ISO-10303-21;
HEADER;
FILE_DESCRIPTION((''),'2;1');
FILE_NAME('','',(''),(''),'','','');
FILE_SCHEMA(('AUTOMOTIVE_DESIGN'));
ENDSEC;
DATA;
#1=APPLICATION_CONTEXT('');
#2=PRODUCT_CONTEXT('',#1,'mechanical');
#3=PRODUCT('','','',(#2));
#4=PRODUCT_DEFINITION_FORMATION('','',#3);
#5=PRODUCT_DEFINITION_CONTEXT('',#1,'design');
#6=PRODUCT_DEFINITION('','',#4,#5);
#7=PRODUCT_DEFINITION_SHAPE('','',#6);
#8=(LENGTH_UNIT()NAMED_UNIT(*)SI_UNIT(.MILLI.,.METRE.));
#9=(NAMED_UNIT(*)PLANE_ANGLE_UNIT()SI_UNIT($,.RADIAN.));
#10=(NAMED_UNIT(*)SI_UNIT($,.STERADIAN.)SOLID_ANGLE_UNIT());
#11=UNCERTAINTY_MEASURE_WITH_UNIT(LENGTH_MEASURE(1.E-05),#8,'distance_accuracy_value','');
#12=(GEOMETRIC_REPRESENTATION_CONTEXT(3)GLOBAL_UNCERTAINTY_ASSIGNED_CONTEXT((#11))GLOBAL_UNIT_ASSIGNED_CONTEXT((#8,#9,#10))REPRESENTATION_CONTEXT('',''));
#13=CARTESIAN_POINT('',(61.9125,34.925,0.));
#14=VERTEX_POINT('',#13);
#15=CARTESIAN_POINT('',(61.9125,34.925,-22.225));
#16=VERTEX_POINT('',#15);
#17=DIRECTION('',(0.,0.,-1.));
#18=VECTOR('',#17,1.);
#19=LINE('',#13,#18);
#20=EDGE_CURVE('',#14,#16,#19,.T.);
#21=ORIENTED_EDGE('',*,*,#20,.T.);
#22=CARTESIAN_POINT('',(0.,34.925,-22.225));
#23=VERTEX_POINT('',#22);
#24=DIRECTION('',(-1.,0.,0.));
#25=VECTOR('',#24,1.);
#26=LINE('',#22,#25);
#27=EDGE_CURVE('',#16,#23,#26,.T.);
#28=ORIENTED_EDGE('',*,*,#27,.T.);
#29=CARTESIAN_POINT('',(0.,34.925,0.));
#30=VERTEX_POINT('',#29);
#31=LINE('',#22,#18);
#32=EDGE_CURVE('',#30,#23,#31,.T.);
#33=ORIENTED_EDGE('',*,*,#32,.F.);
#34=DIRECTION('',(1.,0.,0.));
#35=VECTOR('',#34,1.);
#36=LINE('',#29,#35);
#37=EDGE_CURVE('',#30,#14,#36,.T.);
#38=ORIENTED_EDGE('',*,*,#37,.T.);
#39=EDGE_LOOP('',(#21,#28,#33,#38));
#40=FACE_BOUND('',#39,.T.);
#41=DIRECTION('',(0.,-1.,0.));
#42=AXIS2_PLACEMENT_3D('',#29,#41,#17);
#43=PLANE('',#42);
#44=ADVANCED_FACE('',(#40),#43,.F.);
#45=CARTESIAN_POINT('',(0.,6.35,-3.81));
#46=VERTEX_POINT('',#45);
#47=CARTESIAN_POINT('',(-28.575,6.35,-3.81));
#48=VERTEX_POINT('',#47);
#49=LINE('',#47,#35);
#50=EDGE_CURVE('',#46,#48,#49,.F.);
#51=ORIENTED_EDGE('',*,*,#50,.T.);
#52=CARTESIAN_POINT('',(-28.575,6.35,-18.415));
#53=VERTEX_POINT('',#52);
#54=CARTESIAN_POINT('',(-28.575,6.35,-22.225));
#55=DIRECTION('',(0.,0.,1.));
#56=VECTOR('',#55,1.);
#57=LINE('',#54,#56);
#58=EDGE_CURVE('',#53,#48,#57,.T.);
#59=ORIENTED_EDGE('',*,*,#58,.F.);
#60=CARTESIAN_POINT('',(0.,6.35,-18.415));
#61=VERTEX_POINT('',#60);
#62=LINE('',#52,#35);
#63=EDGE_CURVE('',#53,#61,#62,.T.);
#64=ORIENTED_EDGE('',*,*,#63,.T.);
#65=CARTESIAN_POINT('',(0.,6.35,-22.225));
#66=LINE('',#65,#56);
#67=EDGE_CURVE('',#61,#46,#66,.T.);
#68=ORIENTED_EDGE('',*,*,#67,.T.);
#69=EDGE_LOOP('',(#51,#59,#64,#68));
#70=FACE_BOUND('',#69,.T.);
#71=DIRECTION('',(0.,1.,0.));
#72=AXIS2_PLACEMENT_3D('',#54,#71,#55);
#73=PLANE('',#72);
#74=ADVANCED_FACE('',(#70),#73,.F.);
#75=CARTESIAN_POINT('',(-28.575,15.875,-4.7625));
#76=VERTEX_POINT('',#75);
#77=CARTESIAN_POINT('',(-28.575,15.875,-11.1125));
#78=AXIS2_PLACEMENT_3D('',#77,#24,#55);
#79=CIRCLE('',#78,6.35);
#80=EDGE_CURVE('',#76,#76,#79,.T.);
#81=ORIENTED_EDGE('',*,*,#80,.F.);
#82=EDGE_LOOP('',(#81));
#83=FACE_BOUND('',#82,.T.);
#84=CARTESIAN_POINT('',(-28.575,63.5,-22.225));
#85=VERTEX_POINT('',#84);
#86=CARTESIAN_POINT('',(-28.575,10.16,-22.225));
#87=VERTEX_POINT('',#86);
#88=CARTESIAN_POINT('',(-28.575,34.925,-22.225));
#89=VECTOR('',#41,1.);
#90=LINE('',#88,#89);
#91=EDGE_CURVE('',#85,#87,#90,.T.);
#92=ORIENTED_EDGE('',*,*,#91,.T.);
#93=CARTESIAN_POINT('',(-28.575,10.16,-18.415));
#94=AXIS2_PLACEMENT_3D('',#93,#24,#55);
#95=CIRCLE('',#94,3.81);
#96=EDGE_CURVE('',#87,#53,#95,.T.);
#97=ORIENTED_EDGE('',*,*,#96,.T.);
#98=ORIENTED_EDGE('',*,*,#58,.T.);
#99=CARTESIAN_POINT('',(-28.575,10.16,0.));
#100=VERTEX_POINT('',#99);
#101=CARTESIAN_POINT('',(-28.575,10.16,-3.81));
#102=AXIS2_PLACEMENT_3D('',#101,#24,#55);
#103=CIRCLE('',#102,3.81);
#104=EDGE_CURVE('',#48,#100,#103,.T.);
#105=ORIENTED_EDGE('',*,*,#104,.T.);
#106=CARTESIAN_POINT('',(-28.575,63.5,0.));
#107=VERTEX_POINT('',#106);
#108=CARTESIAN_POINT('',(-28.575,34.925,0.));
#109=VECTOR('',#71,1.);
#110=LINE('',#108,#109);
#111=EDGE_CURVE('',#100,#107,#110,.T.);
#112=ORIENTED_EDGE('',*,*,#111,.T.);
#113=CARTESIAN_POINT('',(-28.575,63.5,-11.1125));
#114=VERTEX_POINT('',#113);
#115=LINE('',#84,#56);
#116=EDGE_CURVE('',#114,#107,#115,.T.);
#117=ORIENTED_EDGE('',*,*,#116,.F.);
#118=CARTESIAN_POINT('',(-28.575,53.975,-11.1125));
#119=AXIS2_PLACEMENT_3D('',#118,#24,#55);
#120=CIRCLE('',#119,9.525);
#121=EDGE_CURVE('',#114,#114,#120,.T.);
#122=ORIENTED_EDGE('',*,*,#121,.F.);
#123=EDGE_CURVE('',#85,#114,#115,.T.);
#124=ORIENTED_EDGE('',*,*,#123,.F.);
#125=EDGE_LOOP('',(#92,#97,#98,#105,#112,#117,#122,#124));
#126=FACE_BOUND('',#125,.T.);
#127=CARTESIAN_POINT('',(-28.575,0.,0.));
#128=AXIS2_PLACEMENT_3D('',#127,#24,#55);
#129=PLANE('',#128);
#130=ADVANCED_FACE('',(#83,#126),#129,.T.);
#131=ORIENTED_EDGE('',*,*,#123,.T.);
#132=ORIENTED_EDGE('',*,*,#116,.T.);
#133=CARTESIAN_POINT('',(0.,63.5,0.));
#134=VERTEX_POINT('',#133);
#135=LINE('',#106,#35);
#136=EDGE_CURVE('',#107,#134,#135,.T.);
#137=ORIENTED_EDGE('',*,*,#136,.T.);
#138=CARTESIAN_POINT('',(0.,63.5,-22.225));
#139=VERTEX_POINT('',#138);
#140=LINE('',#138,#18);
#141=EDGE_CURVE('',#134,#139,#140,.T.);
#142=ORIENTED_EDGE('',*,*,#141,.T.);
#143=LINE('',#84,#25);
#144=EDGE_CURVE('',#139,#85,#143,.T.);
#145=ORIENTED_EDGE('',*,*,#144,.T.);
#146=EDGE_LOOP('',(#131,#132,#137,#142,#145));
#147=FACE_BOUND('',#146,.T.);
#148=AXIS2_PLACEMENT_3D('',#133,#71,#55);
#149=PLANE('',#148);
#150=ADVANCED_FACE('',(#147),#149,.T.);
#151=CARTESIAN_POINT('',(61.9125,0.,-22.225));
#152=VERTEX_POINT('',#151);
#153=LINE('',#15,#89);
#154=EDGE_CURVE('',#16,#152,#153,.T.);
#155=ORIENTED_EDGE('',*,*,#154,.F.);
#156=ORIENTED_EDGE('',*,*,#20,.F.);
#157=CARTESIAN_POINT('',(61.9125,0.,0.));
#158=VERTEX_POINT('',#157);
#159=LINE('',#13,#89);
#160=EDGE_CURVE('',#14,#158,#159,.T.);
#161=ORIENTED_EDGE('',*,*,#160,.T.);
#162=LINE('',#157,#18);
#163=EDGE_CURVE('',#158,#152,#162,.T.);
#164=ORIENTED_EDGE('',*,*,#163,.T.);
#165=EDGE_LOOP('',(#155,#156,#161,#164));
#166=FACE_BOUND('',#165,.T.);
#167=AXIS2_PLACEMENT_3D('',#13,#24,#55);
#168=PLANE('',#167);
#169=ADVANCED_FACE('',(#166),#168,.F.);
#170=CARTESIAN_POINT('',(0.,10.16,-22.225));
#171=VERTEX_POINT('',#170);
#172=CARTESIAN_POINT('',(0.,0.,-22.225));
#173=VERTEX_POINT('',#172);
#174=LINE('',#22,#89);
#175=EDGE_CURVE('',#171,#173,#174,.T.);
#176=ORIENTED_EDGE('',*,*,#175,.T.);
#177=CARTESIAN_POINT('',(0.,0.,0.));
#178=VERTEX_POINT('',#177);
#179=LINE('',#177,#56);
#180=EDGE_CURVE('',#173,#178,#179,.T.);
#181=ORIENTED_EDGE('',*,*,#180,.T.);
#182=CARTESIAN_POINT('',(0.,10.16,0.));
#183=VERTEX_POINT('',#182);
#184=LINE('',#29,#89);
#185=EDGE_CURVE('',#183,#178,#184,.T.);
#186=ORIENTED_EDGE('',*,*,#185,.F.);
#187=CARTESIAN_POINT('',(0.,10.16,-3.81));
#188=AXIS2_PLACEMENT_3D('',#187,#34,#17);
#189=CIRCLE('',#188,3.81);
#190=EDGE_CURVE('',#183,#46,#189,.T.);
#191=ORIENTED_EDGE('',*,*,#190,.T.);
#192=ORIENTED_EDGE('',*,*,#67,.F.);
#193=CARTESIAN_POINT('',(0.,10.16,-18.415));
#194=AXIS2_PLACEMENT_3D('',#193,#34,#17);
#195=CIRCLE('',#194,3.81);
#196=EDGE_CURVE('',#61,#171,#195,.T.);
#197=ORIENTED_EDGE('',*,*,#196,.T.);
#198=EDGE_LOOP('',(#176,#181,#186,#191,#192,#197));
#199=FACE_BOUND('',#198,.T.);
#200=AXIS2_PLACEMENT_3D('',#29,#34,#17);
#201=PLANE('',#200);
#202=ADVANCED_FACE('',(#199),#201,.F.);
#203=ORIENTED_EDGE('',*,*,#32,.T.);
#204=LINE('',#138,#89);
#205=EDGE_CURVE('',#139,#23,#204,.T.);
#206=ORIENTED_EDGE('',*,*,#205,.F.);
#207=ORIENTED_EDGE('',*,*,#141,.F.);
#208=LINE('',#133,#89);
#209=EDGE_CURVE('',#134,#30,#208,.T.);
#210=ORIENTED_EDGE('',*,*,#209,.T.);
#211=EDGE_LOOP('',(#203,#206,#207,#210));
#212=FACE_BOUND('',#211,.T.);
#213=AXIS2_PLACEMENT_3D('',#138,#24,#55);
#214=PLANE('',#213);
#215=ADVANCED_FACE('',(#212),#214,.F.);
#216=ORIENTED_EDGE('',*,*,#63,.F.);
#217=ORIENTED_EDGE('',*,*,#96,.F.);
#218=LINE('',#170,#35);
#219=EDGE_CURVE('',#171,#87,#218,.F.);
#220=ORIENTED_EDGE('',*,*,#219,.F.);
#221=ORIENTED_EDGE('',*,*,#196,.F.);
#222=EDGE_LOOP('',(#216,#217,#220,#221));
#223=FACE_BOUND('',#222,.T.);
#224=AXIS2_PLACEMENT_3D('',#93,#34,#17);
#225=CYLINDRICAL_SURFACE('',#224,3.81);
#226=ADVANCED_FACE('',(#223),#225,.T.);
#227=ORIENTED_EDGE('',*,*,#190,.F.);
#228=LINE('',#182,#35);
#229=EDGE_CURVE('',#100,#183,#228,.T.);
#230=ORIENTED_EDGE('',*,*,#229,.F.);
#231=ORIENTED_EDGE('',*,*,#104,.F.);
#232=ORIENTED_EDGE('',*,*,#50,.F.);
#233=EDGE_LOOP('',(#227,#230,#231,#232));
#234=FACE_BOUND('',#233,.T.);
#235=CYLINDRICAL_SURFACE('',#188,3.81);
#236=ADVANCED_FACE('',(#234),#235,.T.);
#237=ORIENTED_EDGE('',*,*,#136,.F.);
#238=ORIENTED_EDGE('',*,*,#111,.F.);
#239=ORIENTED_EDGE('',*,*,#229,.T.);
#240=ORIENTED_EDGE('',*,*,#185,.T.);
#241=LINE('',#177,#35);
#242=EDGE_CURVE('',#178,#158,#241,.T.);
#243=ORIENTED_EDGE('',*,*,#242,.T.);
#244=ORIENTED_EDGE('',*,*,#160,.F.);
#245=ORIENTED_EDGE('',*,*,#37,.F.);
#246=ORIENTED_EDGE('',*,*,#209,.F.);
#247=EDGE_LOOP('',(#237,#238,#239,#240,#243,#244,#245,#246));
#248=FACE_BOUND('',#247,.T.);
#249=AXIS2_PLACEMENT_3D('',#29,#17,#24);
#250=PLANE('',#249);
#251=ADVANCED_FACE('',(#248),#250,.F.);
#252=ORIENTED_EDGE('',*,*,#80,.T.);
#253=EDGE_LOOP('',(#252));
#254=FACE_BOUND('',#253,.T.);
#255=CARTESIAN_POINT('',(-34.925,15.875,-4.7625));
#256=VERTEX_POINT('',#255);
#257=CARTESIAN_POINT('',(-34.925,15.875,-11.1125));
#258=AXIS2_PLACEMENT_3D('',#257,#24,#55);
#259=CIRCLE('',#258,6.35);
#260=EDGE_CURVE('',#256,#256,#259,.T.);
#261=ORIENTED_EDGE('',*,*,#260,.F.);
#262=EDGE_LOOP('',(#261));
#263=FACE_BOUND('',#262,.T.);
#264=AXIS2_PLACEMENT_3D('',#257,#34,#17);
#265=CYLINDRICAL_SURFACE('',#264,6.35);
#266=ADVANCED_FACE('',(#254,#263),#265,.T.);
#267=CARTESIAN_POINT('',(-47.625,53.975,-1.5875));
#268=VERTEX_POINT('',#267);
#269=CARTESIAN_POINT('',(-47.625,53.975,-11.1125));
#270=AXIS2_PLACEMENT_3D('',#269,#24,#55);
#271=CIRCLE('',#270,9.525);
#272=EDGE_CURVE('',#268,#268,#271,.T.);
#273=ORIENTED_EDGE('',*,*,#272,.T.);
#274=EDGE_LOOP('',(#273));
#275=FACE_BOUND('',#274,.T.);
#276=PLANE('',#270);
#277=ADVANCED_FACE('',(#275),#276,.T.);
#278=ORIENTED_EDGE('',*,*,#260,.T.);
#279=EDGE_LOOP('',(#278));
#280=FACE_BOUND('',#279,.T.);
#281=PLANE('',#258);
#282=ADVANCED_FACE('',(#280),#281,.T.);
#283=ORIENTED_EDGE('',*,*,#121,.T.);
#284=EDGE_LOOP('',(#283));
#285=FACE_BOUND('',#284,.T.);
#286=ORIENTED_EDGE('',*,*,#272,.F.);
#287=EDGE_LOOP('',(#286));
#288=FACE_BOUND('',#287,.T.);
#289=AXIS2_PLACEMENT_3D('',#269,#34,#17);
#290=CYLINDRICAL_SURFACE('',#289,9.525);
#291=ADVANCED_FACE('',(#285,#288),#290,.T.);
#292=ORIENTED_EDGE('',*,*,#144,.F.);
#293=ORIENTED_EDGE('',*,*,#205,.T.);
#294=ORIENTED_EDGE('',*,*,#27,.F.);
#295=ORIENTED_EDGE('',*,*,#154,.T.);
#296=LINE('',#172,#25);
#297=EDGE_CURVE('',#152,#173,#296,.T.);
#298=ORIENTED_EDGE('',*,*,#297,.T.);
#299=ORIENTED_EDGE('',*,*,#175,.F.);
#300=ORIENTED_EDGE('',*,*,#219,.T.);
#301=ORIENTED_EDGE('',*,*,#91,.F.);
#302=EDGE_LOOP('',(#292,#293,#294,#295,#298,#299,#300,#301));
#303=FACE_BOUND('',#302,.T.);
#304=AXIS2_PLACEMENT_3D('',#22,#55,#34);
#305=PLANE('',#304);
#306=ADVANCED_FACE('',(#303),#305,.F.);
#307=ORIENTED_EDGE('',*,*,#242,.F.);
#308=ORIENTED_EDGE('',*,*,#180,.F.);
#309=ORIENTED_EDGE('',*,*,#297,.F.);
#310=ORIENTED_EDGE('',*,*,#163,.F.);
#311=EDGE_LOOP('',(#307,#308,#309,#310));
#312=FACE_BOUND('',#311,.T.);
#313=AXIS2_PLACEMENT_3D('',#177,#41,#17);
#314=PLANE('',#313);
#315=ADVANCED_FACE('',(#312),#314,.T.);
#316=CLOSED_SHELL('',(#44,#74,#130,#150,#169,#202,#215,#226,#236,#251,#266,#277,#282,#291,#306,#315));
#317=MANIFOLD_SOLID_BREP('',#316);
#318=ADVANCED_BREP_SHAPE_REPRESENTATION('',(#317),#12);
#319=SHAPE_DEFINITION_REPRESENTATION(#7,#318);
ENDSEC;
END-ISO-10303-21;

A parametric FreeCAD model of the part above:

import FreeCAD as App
import Part
import Sketcher
Q = App.Units.Quantity


def edges_at(feature, points):
    """Names of the edges that pass closest to the given points."""
    edges = feature.Shape.Edges
    near = lambda p: min(range(len(edges)), key=lambda i: edges[i].distToShape(Part.Vertex(*p))[0])
    return sorted({f"Edge{near(p) + 1}" for p in points})

doc = App.newDocument("Part")
body = doc.addObject("PartDesign::Body", "Body")

sketch1 = doc.addObject("Sketcher::SketchObject", "Sketch")
body.addObject(sketch1)
sketch1.AttachmentSupport = (doc.XZ_Plane, [""])
sketch1.MapMode = "FlatFace"
sketch1.addGeometry([
    Part.LineSegment(App.Vector(0, -22.225, 0), App.Vector(0, 0, 0)),
    Part.LineSegment(App.Vector(0, 0, 0), App.Vector(61.9125, 0, 0)),
    Part.LineSegment(App.Vector(61.9125, 0, 0), App.Vector(61.9125, -22.225, 0)),
    Part.LineSegment(App.Vector(61.9125, -22.225, 0), App.Vector(0, -22.225, 0)),
], False)
sketch1.addConstraint([
    Sketcher.Constraint("Coincident", 0, 2, 1, 1),
    Sketcher.Constraint("Coincident", 1, 2, 2, 1),
    Sketcher.Constraint("Coincident", 2, 2, 3, 1),
    Sketcher.Constraint("Coincident", 3, 2, 0, 1),
    Sketcher.Constraint("Vertical", 0),
    Sketcher.Constraint("Horizontal", 1),
    Sketcher.Constraint("Vertical", 2),
    Sketcher.Constraint("Horizontal", 3),
    Sketcher.Constraint("Coincident", 0, 2, -1, 1),
    Sketcher.Constraint("DistanceX", 1, 1, 1, 2, Q("2.4375 in")),
    Sketcher.Constraint("DistanceY", 0, 1, 0, 2, Q("0.875 in")),
])
pad1 = doc.addObject("PartDesign::Pad", "Pad")
body.addObject(pad1)
pad1.Profile = sketch1
pad1.Length = Q("1.375 in")
pad1.Reversed = True

sketch2 = doc.addObject("Sketcher::SketchObject", "Sketch001")
body.addObject(sketch2)
sketch2.AttachmentSupport = (doc.YZ_Plane, [""])
sketch2.MapMode = "FlatFace"
sketch2.addGeometry([
    Part.LineSegment(App.Vector(34.925, -22.225, 0), App.Vector(6.35, -22.225, 0)),
    Part.LineSegment(App.Vector(6.35, -22.225, 0), App.Vector(6.35, 0, 0)),
    Part.LineSegment(App.Vector(6.35, 0, 0), App.Vector(34.925, 0, 0)),
    Part.LineSegment(App.Vector(34.925, 0, 0), App.Vector(34.925, -22.225, 0)),
], False)
sketch2.addConstraint([
    Sketcher.Constraint("Coincident", 0, 2, 1, 1),
    Sketcher.Constraint("Coincident", 1, 2, 2, 1),
    Sketcher.Constraint("Coincident", 2, 2, 3, 1),
    Sketcher.Constraint("Coincident", 3, 2, 0, 1),
    Sketcher.Constraint("Horizontal", 0),
    Sketcher.Constraint("Vertical", 1),
    Sketcher.Constraint("Horizontal", 2),
    Sketcher.Constraint("Vertical", 3),
    Sketcher.Constraint("PointOnObject", 1, 2, -1),
    Sketcher.Constraint("DistanceX", 0, 2, 0, 1, Q("1.125 in")),
    Sketcher.Constraint("DistanceY", 1, 1, 1, 2, Q("0.875 in")),
    Sketcher.Constraint("DistanceX", -1, 1, 0, 2, Q("0.25 in")),
])
pad2 = doc.addObject("PartDesign::Pad", "Pad001")
body.addObject(pad2)
pad2.Profile = sketch2
pad2.Length = Q("1.125 in")
pad2.Reversed = True

sketch3 = doc.addObject("Sketcher::SketchObject", "Sketch002")
body.addObject(sketch3)
sketch3.AttachmentSupport = (doc.XZ_Plane, [""])
sketch3.MapMode = "FlatFace"
sketch3.AttachmentOffset = App.Placement(App.Vector(0, 0, -1.375 * 25.4), App.Rotation())
sketch3.addGeometry([
    Part.LineSegment(App.Vector(-28.575, -22.225, 0), App.Vector(-28.575, 0, 0)),
    Part.LineSegment(App.Vector(-28.575, 0, 0), App.Vector(0, 0, 0)),
    Part.LineSegment(App.Vector(0, 0, 0), App.Vector(0, -22.225, 0)),
    Part.LineSegment(App.Vector(0, -22.225, 0), App.Vector(-28.575, -22.225, 0)),
], False)
sketch3.addConstraint([
    Sketcher.Constraint("Coincident", 0, 2, 1, 1),
    Sketcher.Constraint("Coincident", 1, 2, 2, 1),
    Sketcher.Constraint("Coincident", 2, 2, 3, 1),
    Sketcher.Constraint("Coincident", 3, 2, 0, 1),
    Sketcher.Constraint("Vertical", 0),
    Sketcher.Constraint("Horizontal", 1),
    Sketcher.Constraint("Vertical", 2),
    Sketcher.Constraint("Horizontal", 3),
    Sketcher.Constraint("Coincident", 1, 2, -1, 1),
    Sketcher.Constraint("DistanceX", 1, 1, 1, 2, Q("1.125 in")),
    Sketcher.Constraint("DistanceY", 0, 1, 0, 2, Q("0.875 in")),
])
pad3 = doc.addObject("PartDesign::Pad", "Pad002")
body.addObject(pad3)
pad3.Profile = sketch3
pad3.Length = Q("1.125 in")
pad3.Reversed = True

sketch4 = doc.addObject("Sketcher::SketchObject", "Sketch003")
body.addObject(sketch4)
sketch4.AttachmentSupport = (doc.YZ_Plane, [""])
sketch4.MapMode = "FlatFace"
sketch4.AttachmentOffset = App.Placement(App.Vector(0, 0, -1.125 * 25.4), App.Rotation())
sketch4.addGeometry(Part.Circle(App.Vector(15.875, -11.1125, 0), App.Vector(0, 0, 1), 6.35), False)
sketch4.addConstraint([
    Sketcher.Constraint("Diameter", 0, Q("0.5 in")),
    Sketcher.Constraint("DistanceX", -1, 1, 0, 3, Q("0.625 in")),
    Sketcher.Constraint("DistanceY", 0, 3, -1, 1, Q("0.4375 in")),
])
pad4 = doc.addObject("PartDesign::Pad", "Pad003")
body.addObject(pad4)
pad4.Profile = sketch4
pad4.Length = Q("0.25 in")
pad4.Reversed = True
doc.recompute()

fillet = doc.addObject("PartDesign::Fillet", "Fillet")
body.addObject(fillet)
fillet.Base = (pad4, edges_at(pad4, [(-14.287, 6.35, -22.225), (-14.287, 6.35, 0)]))
fillet.Radius = Q("0.15 in")

sketch5 = doc.addObject("Sketcher::SketchObject", "Sketch004")
body.addObject(sketch5)
sketch5.AttachmentSupport = (doc.YZ_Plane, [""])
sketch5.MapMode = "FlatFace"
sketch5.AttachmentOffset = App.Placement(App.Vector(0, 0, -1.125 * 25.4), App.Rotation())
sketch5.addGeometry(Part.Circle(App.Vector(53.975, -11.1125, 0), App.Vector(0, 0, 1), 9.525), False)
sketch5.addConstraint([
    Sketcher.Constraint("Diameter", 0, Q("0.75 in")),
    Sketcher.Constraint("DistanceX", -1, 1, 0, 3, Q("2.125 in")),
    Sketcher.Constraint("DistanceY", 0, 3, -1, 1, Q("0.4375 in")),
])
pad5 = doc.addObject("PartDesign::Pad", "Pad004")
body.addObject(pad5)
pad5.Profile = sketch5
pad5.Length = Q("0.75 in")
pad5.Reversed = True

doc.recompute()
